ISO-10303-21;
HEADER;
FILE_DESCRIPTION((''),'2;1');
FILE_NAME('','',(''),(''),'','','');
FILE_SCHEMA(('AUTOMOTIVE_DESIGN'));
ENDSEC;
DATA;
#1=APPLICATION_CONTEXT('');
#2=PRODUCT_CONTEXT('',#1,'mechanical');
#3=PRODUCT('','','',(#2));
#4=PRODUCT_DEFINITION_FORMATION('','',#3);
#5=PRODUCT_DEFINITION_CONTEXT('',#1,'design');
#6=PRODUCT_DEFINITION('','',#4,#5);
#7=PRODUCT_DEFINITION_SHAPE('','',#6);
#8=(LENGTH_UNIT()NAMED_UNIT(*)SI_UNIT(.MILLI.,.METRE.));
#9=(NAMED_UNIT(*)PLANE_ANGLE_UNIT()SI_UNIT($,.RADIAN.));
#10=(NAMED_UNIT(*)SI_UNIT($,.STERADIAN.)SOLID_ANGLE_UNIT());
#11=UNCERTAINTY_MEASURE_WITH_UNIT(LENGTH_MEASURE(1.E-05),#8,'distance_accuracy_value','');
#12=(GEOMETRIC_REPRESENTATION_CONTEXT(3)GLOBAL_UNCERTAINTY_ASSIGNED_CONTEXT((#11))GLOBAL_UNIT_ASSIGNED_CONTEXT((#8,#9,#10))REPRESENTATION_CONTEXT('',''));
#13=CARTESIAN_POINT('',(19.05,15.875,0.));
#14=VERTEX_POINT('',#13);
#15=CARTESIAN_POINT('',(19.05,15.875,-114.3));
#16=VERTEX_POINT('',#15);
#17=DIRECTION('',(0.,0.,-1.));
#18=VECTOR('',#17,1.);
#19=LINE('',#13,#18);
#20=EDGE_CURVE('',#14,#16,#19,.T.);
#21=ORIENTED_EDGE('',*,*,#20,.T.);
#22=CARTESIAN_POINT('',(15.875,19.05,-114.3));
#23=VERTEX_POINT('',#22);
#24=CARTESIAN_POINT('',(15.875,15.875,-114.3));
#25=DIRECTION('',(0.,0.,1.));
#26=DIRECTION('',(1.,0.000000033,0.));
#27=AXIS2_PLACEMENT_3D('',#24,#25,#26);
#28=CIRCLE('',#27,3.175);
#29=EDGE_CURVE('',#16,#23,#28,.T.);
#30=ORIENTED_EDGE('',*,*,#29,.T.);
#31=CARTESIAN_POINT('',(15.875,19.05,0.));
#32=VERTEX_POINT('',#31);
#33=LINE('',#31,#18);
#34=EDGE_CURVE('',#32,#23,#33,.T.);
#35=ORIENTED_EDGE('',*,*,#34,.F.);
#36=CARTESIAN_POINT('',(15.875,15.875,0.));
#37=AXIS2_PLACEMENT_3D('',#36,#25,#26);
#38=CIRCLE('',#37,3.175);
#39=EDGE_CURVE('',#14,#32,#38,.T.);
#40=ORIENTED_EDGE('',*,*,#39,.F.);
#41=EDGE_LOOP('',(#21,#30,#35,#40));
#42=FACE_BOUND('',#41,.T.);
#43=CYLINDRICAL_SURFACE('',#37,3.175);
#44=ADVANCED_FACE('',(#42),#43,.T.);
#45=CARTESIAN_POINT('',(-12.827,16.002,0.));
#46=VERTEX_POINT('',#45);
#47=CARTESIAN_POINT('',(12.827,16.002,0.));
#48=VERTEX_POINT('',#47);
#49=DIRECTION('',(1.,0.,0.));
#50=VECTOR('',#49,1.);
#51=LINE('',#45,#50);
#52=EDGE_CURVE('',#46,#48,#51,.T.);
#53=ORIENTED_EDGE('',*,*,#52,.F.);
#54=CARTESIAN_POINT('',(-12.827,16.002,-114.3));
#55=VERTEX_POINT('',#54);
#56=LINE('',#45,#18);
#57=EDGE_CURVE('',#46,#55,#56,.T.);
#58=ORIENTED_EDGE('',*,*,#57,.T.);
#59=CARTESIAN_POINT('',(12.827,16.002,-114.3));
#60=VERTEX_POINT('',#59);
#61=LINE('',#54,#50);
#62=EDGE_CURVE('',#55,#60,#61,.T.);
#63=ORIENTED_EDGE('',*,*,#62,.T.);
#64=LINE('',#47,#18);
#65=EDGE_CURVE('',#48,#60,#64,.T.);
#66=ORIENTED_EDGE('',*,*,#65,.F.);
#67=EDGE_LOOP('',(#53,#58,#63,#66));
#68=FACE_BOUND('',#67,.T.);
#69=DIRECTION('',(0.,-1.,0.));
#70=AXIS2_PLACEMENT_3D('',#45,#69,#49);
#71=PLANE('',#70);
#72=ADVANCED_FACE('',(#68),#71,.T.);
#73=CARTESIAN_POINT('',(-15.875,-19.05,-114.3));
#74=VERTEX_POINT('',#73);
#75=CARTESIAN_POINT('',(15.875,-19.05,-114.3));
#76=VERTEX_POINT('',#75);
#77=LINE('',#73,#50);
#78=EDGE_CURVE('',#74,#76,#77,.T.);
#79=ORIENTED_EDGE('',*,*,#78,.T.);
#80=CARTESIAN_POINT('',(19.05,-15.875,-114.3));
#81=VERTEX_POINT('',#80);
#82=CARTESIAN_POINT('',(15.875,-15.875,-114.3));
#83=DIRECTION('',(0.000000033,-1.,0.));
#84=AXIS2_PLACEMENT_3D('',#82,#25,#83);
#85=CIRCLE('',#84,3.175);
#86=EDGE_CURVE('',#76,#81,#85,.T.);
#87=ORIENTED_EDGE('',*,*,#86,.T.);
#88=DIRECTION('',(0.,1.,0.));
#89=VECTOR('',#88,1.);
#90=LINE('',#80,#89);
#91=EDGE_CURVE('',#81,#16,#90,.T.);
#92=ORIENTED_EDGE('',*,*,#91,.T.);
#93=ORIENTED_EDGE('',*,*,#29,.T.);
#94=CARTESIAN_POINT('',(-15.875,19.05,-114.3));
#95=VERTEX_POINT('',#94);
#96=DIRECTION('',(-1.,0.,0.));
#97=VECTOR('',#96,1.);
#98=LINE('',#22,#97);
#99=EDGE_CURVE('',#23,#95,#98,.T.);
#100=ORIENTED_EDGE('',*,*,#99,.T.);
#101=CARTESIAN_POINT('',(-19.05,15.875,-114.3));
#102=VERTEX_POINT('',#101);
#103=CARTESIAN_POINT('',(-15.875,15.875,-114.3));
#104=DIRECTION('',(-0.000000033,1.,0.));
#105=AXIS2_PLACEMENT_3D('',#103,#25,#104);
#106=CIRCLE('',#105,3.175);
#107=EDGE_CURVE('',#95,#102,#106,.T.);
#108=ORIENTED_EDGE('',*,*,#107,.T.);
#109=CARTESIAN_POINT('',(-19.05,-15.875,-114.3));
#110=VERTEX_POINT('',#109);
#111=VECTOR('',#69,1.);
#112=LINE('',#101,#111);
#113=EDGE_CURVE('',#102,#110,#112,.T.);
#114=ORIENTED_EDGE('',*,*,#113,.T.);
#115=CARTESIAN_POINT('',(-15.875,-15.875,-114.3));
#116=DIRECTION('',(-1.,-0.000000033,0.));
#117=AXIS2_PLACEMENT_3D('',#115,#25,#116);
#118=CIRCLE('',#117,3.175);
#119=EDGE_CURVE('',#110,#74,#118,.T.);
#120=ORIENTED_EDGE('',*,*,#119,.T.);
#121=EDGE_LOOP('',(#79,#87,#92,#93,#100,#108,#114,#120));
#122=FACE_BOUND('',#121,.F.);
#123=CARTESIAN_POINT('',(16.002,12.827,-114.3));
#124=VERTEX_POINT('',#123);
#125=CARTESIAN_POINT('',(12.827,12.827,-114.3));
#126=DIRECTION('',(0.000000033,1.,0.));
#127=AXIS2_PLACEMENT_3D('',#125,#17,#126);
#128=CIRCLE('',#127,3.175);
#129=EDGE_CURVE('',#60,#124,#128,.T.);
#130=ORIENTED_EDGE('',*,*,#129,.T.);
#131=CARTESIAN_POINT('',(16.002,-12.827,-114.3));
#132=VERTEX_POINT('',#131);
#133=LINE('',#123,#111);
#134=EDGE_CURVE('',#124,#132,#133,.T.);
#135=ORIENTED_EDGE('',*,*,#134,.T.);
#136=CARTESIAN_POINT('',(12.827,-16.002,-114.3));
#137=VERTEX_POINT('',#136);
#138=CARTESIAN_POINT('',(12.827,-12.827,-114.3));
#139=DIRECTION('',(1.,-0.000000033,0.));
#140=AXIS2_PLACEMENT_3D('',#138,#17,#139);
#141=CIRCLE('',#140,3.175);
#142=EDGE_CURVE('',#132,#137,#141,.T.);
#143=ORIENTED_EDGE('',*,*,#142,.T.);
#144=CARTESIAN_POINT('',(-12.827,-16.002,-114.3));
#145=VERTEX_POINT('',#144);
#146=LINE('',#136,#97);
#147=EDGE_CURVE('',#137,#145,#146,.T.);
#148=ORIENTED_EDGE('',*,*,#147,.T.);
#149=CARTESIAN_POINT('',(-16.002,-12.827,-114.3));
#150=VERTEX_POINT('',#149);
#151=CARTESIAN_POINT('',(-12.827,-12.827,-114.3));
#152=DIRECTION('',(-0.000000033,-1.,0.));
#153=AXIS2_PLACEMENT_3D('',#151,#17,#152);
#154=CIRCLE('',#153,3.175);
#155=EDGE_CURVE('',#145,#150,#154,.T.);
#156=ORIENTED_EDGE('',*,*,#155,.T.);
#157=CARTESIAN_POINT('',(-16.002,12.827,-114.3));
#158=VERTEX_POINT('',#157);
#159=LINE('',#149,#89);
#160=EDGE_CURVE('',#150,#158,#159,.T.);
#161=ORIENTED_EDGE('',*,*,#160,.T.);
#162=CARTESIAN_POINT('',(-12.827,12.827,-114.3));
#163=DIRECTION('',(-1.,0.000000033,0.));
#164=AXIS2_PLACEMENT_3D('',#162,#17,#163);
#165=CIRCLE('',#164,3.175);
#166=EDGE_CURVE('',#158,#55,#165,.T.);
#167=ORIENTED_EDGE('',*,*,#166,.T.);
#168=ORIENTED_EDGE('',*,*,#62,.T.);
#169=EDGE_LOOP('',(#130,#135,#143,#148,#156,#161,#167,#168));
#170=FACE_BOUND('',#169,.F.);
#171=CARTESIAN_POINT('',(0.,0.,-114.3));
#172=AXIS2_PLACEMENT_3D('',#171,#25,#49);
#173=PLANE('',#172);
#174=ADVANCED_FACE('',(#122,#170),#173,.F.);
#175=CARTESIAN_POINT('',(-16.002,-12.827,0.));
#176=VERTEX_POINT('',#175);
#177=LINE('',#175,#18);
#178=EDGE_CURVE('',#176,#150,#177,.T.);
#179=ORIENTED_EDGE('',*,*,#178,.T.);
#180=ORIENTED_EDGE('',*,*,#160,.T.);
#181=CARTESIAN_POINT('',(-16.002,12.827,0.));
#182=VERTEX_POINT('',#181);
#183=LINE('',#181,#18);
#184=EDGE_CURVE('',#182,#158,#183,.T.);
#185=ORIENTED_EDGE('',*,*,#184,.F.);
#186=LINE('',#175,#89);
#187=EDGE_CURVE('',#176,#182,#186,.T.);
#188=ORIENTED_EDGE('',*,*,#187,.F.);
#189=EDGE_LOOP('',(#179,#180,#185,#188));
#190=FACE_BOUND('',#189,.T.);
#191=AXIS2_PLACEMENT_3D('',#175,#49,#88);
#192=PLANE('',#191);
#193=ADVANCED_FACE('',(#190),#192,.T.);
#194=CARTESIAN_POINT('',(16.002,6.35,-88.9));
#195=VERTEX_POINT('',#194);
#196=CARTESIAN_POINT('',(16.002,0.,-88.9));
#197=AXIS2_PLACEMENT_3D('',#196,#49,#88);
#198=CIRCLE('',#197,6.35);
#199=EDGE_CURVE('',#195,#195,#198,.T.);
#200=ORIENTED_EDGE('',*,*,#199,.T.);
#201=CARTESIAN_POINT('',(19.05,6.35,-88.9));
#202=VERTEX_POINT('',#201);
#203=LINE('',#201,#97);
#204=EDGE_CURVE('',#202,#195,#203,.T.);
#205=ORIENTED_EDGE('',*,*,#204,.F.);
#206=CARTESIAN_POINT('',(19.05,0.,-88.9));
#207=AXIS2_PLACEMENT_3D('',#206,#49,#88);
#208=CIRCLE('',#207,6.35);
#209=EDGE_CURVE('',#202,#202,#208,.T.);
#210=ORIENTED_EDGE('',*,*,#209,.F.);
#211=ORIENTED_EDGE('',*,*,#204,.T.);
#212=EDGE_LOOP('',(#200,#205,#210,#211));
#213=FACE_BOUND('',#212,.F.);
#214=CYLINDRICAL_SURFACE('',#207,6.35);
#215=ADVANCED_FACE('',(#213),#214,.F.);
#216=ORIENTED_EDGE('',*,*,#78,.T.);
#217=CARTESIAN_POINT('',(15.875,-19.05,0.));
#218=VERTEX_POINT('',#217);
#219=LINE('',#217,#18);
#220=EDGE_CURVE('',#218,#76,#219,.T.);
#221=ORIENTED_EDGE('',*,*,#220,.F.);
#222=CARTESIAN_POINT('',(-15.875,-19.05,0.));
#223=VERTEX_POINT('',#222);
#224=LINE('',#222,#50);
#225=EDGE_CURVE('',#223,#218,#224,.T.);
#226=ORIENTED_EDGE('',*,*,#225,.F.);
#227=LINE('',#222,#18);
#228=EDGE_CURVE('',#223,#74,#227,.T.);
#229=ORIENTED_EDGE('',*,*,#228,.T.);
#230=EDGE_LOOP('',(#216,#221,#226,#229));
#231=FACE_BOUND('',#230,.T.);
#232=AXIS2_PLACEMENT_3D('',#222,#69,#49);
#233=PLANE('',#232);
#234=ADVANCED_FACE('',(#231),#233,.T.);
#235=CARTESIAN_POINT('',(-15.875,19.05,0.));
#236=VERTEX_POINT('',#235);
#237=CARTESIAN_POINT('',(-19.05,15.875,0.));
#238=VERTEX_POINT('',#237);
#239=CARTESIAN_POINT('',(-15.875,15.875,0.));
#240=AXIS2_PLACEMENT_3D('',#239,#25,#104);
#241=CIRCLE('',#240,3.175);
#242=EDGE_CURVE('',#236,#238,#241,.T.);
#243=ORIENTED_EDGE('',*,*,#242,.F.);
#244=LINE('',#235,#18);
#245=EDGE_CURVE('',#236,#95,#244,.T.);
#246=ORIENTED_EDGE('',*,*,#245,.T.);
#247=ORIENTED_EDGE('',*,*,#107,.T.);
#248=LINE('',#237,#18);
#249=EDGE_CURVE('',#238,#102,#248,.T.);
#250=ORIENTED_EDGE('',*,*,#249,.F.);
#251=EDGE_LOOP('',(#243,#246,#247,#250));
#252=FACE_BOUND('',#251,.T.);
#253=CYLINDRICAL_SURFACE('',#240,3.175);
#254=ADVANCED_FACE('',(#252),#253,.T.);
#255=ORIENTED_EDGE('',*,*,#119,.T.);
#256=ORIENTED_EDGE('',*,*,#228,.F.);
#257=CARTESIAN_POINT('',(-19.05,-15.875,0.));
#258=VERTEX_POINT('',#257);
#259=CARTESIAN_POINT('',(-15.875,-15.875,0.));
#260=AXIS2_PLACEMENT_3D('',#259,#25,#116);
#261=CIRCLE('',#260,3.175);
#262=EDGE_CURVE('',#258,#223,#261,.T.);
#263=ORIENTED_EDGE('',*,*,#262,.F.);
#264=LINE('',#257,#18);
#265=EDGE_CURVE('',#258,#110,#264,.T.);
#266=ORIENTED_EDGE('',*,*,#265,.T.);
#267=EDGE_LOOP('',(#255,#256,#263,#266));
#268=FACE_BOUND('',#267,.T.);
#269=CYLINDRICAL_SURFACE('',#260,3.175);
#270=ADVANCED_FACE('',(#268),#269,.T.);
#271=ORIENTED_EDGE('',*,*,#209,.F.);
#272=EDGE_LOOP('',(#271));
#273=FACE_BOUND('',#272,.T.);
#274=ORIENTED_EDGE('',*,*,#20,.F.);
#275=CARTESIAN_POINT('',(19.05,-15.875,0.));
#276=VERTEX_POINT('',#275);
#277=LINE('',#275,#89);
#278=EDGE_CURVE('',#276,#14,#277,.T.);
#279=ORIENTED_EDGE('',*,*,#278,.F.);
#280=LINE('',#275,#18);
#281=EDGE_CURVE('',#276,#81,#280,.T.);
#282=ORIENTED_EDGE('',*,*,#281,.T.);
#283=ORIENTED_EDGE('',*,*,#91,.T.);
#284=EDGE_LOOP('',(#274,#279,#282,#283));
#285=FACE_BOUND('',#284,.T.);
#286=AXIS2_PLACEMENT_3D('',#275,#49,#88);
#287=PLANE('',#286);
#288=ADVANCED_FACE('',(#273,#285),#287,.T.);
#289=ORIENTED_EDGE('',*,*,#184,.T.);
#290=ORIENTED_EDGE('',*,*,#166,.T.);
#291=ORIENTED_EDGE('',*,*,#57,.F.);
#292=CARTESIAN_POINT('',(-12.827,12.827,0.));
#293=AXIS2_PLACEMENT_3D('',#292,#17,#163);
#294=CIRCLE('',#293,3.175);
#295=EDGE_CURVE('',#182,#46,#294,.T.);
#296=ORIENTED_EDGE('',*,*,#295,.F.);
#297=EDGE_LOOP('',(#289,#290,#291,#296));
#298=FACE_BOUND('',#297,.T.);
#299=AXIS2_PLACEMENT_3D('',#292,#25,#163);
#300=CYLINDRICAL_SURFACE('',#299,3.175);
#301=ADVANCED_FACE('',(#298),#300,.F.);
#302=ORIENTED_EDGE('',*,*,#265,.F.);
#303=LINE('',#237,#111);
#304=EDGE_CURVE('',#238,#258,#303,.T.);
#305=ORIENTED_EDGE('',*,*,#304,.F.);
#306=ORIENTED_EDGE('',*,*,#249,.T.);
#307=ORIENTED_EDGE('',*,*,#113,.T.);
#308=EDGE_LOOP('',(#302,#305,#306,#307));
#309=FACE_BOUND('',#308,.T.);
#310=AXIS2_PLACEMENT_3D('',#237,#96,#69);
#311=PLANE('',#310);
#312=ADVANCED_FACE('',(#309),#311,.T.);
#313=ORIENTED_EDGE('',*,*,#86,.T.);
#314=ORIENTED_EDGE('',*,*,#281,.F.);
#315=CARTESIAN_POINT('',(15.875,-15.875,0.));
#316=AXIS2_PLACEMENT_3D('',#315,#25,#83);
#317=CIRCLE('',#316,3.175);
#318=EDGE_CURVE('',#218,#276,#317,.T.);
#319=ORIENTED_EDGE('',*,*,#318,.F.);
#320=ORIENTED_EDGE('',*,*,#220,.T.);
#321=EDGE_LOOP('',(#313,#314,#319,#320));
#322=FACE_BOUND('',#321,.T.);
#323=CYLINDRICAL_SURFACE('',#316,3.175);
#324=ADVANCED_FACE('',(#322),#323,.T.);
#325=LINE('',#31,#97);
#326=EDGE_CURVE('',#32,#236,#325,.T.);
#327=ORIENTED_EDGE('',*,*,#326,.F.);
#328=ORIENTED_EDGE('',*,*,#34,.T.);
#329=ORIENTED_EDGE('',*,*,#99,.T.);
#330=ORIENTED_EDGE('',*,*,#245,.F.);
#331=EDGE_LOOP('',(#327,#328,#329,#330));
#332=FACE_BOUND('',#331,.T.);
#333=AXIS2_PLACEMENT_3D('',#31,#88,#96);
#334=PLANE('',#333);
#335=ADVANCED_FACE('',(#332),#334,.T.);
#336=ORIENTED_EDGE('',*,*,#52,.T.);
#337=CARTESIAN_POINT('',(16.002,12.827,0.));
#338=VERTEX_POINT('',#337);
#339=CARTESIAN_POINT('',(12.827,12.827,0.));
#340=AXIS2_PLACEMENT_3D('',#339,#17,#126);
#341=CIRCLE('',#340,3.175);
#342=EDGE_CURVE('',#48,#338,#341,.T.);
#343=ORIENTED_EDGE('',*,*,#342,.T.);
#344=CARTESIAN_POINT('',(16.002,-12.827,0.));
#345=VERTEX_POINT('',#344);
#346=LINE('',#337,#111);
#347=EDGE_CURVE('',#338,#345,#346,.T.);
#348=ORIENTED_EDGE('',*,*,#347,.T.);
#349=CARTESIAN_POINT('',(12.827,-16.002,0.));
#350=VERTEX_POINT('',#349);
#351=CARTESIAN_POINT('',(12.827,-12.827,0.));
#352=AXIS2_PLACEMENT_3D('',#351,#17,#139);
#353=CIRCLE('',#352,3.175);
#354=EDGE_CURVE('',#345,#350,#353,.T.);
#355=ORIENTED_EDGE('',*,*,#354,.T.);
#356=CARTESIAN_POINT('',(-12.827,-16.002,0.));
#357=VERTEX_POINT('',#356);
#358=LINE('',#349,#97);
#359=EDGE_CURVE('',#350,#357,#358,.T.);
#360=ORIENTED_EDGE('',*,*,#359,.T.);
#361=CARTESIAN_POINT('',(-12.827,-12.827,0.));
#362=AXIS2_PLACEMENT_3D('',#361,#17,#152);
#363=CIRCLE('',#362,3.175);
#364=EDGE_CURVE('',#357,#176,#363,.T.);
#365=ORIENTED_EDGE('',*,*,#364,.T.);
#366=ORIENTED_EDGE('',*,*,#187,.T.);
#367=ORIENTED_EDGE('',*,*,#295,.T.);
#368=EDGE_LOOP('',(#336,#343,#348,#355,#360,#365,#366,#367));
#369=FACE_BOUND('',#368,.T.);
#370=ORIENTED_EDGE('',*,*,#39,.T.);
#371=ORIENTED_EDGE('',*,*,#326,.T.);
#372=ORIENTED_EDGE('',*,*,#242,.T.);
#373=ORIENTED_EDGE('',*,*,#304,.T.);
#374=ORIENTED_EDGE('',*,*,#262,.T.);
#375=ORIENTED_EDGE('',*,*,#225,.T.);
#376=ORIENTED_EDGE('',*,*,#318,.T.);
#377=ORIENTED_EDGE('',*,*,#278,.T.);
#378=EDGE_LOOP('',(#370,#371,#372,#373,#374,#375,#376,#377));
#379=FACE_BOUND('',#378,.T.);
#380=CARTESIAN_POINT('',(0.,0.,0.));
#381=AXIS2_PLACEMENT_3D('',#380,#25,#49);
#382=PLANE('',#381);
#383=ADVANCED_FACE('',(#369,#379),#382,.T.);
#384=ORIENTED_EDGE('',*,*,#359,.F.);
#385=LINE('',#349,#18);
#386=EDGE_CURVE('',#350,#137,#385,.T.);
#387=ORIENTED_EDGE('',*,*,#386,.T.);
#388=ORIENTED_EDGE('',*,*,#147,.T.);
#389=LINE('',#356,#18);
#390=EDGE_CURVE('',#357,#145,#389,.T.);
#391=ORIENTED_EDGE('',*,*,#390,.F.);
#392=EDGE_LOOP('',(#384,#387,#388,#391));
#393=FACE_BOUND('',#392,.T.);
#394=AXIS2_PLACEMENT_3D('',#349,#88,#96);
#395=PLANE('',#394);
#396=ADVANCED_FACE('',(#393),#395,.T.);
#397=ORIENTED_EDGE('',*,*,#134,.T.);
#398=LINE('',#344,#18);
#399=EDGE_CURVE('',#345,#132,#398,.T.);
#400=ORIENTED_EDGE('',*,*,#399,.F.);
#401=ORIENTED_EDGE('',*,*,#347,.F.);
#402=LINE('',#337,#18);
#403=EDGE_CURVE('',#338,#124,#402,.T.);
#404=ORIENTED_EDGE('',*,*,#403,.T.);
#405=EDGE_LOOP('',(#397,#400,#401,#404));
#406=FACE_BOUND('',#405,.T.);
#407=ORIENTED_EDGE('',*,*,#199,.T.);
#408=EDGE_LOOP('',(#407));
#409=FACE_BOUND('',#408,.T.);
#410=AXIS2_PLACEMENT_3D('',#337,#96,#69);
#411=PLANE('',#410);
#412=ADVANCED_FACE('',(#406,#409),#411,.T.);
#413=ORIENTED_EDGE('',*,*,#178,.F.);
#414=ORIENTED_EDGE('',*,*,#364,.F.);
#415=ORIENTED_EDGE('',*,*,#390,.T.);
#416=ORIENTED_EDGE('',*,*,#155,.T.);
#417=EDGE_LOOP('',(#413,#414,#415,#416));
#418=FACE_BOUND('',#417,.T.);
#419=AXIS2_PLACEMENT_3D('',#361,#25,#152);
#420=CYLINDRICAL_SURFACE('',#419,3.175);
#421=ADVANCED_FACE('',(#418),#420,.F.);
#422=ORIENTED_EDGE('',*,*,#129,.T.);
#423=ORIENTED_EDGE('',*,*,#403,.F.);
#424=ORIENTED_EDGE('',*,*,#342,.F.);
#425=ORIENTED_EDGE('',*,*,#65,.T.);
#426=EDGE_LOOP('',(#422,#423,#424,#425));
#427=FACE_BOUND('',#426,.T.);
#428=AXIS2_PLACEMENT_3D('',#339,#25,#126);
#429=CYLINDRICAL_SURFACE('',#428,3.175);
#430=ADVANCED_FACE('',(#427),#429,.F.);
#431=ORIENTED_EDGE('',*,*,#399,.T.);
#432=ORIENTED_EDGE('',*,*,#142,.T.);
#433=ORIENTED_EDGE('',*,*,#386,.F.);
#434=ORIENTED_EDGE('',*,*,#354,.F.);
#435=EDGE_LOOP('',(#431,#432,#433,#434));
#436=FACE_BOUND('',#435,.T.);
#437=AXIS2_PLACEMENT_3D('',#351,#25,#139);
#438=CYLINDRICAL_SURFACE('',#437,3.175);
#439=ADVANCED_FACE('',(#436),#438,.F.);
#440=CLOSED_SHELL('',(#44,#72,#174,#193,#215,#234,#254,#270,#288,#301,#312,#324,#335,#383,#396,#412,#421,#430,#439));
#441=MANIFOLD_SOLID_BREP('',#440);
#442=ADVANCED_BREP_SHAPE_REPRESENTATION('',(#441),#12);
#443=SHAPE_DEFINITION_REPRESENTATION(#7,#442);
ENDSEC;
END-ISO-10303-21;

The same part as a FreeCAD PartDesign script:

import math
import FreeCAD as App
import Part
import Sketcher
from FreeCAD import Vector
Q = App.Units.Quantity

doc = App.newDocument("Part")
body = doc.addObject("PartDesign::Body", "Body")

# Sketch on XY plane
sketch1 = body.newObject("Sketcher::SketchObject", "Sketch")
sketch1.AttachmentSupport = (doc.getObject("XY_Plane"), [""])
sketch1.MapMode = "FlatFace"
sketch1.addGeometry(Part.LineSegment(Vector(15.9, 19.1, 0), Vector(-15.9, 19.1, 0)), False)
sketch1.addGeometry(Part.ArcOfCircle(Part.Circle(Vector(-15.9, 15.9, 0), Vector(0, 0, 1), 3.2), math.radians(90), math.radians(180)), False)
sketch1.addGeometry(Part.LineSegment(Vector(-19.1, 15.9, 0), Vector(-19.1, -15.9, 0)), False)
sketch1.addGeometry(Part.ArcOfCircle(Part.Circle(Vector(-15.9, -15.9, 0), Vector(0, 0, 1), 3.2), math.radians(-180), math.radians(-90)), False)
sketch1.addGeometry(Part.LineSegment(Vector(-15.9, -19.1, 0), Vector(15.9, -19.1, 0)), False)
sketch1.addGeometry(Part.ArcOfCircle(Part.Circle(Vector(15.9, -15.9, 0), Vector(0, 0, 1), 3.2), math.radians(-90), math.radians(0)), False)
sketch1.addGeometry(Part.LineSegment(Vector(19.1, -15.9, 0), Vector(19.1, 15.9, 0)), False)
sketch1.addGeometry(Part.ArcOfCircle(Part.Circle(Vector(15.9, 15.9, 0), Vector(0, 0, 1), 3.2), math.radians(0), math.radians(90)), False)
sketch1.addGeometry(Part.ArcOfCircle(Part.Circle(Vector(-12.8, -12.8, 0), Vector(0, 0, 1), 3.2), math.radians(-180), math.radians(-90)), False)
sketch1.addGeometry(Part.LineSegment(Vector(-16, -12.8, 0), Vector(-16, 12.8, 0)), False)
sketch1.addGeometry(Part.ArcOfCircle(Part.Circle(Vector(-12.8, 12.8, 0), Vector(0, 0, 1), 3.2), math.radians(90), math.radians(180)), False)
sketch1.addGeometry(Part.LineSegment(Vector(-12.8, 16, 0), Vector(12.8, 16, 0)), False)
sketch1.addGeometry(Part.ArcOfCircle(Part.Circle(Vector(12.8, 12.8, 0), Vector(0, 0, 1), 3.2), math.radians(0), math.radians(90)), False)
sketch1.addGeometry(Part.LineSegment(Vector(16, 12.8, 0), Vector(16, -12.8, 0)), False)
sketch1.addGeometry(Part.ArcOfCircle(Part.Circle(Vector(12.8, -12.8, 0), Vector(0, 0, 1), 3.2), math.radians(-90), math.radians(0)), False)
sketch1.addGeometry(Part.LineSegment(Vector(12.8, -16, 0), Vector(-12.8, -16, 0)), False)
sketch1.addConstraint(Sketcher.Constraint("Tangent", 0, 2, 1, 1))
sketch1.addConstraint(Sketcher.Constraint("Tangent", 1, 2, 2, 1))
sketch1.addConstraint(Sketcher.Constraint("Tangent", 2, 2, 3, 1))
sketch1.addConstraint(Sketcher.Constraint("Tangent", 3, 2, 4, 1))
sketch1.addConstraint(Sketcher.Constraint("Tangent", 4, 2, 5, 1))
sketch1.addConstraint(Sketcher.Constraint("Tangent", 5, 2, 6, 1))
sketch1.addConstraint(Sketcher.Constraint("Tangent", 6, 2, 7, 1))
sketch1.addConstraint(Sketcher.Constraint("Tangent", 7, 2, 0, 1))
sketch1.addConstraint(Sketcher.Constraint("Tangent", 8, 1, 9, 1))
sketch1.addConstraint(Sketcher.Constraint("Tangent", 9, 2, 10, 2))
sketch1.addConstraint(Sketcher.Constraint("Tangent", 10, 1, 11, 1))
sketch1.addConstraint(Sketcher.Constraint("Tangent", 11, 2, 12, 2))
sketch1.addConstraint(Sketcher.Constraint("Tangent", 12, 1, 13, 1))
sketch1.addConstraint(Sketcher.Constraint("Tangent", 13, 2, 14, 2))
sketch1.addConstraint(Sketcher.Constraint("Tangent", 14, 1, 15, 1))
sketch1.addConstraint(Sketcher.Constraint("Tangent", 15, 2, 8, 2))
sketch1.addConstraint(Sketcher.Constraint("Horizontal", 0))
sketch1.addConstraint(Sketcher.Constraint("Vertical", 2))
sketch1.addConstraint(Sketcher.Constraint("Horizontal", 4))
sketch1.addConstraint(Sketcher.Constraint("Vertical", 6))
sketch1.addConstraint(Sketcher.Constraint("Vertical", 9))
sketch1.addConstraint(Sketcher.Constraint("Horizontal", 11))
sketch1.addConstraint(Sketcher.Constraint("Vertical", 13))
sketch1.addConstraint(Sketcher.Constraint("Horizontal", 15))
sketch1.addConstraint(Sketcher.Constraint("Equal", 1, 3))
sketch1.addConstraint(Sketcher.Constraint("Equal", 3, 5))
sketch1.addConstraint(Sketcher.Constraint("Equal", 5, 7))
sketch1.addConstraint(Sketcher.Constraint("Equal", 7, 8))
sketch1.addConstraint(Sketcher.Constraint("Equal", 8, 10))
sketch1.addConstraint(Sketcher.Constraint("Equal", 10, 12))
sketch1.addConstraint(Sketcher.Constraint("Equal", 12, 14))
sketch1.addConstraint(Sketcher.Constraint("Symmetric", 1, 3, 5, 3, -1, 1))
sketch1.addConstraint(Sketcher.Constraint("Symmetric", 8, 3, 12, 3, -1, 1))
sketch1.addConstraint(Sketcher.Constraint("Equal", 4, 2))
sketch1.addConstraint(Sketcher.Constraint("Equal", 15, 9))
sketch1.addConstraint(Sketcher.Constraint("Radius", 1, Q("0.125 in")))
sketch1.addConstraint(Sketcher.Constraint("DistanceX", 0, 2, 0, 1, Q("1.25 in")))
sketch1.addConstraint(Sketcher.Constraint("DistanceX", 11, 1, 11, 2, Q("1.01 in")))
pad1 = body.newObject("PartDesign::Pad", "Pad")
pad1.Profile = sketch1
pad1.Length = Q("4.5 in")
pad1.Reversed = True

# Sketch on YZ plane
sketch2 = body.newObject("Sketcher::SketchObject", "Sketch001")
sketch2.AttachmentSupport = (doc.getObject("YZ_Plane"), [""])
sketch2.MapMode = "FlatFace"
sketch2.AttachmentOffset = App.Placement(Vector(0, 0, 0.75 * 25.4), App.Rotation())
sketch2.addGeometry(Part.Circle(Vector(0, -89, 0), Vector(0, 0, 1), 6), False)
sketch2.addConstraint(Sketcher.Constraint("PointOnObject", 0, 3, -2))
sketch2.addConstraint(Sketcher.Constraint("Diameter", 0, Q("0.5 in")))
sketch2.addConstraint(Sketcher.Constraint("DistanceY", 0, 3, -1, 1, Q("3.5 in")))
pocket1 = body.newObject("PartDesign::Pocket", "Pocket")
pocket1.Profile = sketch2
pocket1.Length = Q("0.25 in")

doc.recompute()
